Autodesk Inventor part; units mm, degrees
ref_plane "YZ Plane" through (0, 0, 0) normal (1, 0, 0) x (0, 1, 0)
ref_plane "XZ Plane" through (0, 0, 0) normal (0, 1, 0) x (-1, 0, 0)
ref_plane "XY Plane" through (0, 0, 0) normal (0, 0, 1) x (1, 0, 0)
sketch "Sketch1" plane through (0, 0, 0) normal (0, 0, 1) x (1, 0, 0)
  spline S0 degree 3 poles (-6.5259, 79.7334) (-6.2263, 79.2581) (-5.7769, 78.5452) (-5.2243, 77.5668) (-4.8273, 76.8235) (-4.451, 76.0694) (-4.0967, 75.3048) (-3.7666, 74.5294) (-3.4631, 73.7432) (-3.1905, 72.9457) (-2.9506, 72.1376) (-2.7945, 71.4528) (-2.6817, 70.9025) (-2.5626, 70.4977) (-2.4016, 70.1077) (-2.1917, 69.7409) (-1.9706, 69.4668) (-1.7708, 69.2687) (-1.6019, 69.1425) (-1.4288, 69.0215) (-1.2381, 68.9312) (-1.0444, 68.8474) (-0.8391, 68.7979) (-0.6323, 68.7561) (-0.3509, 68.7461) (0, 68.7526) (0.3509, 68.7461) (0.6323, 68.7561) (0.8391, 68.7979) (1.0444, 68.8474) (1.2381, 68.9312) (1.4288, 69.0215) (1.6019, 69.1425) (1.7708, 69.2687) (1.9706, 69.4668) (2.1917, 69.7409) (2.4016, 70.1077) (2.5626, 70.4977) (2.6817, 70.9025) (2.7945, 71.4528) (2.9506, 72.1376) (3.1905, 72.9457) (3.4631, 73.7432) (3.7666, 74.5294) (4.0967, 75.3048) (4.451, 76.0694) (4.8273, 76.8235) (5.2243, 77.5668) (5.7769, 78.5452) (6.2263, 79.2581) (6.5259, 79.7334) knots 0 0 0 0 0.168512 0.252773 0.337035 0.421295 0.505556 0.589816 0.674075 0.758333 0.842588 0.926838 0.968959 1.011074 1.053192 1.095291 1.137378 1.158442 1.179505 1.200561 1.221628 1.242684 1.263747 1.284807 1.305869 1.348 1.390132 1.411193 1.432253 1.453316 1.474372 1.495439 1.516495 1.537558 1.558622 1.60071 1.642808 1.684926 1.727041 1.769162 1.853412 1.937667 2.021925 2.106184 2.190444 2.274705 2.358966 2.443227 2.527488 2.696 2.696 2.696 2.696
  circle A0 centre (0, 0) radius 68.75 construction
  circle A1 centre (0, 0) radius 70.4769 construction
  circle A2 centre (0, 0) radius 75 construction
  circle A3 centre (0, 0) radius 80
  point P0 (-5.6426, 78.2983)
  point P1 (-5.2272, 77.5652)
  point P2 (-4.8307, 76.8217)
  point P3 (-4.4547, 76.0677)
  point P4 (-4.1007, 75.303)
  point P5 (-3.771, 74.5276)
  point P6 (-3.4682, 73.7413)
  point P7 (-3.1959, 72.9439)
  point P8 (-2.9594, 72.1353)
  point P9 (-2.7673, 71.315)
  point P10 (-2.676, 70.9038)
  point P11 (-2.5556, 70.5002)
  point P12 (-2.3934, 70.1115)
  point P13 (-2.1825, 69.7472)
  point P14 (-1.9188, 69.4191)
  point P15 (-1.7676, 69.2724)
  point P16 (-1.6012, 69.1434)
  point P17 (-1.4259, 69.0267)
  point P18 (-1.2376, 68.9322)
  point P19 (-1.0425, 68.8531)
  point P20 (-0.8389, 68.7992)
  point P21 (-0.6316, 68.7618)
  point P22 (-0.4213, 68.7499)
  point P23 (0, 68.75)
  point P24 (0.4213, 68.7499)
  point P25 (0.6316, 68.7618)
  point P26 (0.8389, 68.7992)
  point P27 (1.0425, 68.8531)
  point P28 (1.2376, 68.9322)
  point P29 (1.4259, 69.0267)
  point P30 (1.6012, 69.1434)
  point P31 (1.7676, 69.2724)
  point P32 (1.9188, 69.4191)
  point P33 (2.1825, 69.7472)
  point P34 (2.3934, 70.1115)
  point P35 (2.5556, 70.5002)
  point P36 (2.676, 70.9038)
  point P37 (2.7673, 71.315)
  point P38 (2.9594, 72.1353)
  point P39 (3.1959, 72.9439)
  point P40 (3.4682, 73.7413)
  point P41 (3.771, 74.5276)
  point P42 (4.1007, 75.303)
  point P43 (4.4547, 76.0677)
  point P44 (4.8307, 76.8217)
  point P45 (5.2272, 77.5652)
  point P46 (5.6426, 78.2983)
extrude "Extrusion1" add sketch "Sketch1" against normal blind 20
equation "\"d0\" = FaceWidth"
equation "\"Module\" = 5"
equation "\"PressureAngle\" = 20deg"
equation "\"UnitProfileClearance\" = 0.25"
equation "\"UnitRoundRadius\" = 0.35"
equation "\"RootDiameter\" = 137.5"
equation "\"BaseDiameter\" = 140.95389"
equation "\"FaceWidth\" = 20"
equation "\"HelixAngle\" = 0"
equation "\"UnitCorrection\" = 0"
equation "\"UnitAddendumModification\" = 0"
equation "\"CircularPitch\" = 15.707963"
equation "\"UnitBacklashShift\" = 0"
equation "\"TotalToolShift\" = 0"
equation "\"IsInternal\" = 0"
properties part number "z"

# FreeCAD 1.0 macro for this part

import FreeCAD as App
import Part
import Sketcher

V = App.Vector

doc = App.newDocument("Part")
params = doc.addObject("Spreadsheet::Sheet", "Params")
for row, (alias, value) in enumerate([
    ("sketch1_diameter", "160 mm"),
    ("pad1_length", "20 mm"),
], start=1):
    params.set(f"A{row}", alias)
    params.set(f"B{row}", "=" + value)
    params.setAlias(f"B{row}", alias)

body = doc.addObject("PartDesign::Body", "Body")

sketch1 = doc.addObject("Sketcher::SketchObject", "Sketch")
body.addObject(sketch1)
sketch1.AttachmentSupport = (doc.XY_Plane, [""])
sketch1.MapMode = "FlatFace"
sketch1.addGeometry(Part.Circle(V(0, 0, 0), V(0, 0, 1), 80), False)
sketch1.addConstraint([
    Sketcher.Constraint("Coincident", 0, 3, -1, 1),
    Sketcher.Constraint("Diameter", 0, 160.0),
])
sketch1.setExpression("Constraints[1]", "Params.sketch1_diameter")
pad1 = doc.addObject("PartDesign::Pad", "Pad")
body.addObject(pad1)
pad1.Profile = sketch1
pad1.setExpression("Length", "Params.pad1_length")
pad1.Reversed = True

doc.recompute()
